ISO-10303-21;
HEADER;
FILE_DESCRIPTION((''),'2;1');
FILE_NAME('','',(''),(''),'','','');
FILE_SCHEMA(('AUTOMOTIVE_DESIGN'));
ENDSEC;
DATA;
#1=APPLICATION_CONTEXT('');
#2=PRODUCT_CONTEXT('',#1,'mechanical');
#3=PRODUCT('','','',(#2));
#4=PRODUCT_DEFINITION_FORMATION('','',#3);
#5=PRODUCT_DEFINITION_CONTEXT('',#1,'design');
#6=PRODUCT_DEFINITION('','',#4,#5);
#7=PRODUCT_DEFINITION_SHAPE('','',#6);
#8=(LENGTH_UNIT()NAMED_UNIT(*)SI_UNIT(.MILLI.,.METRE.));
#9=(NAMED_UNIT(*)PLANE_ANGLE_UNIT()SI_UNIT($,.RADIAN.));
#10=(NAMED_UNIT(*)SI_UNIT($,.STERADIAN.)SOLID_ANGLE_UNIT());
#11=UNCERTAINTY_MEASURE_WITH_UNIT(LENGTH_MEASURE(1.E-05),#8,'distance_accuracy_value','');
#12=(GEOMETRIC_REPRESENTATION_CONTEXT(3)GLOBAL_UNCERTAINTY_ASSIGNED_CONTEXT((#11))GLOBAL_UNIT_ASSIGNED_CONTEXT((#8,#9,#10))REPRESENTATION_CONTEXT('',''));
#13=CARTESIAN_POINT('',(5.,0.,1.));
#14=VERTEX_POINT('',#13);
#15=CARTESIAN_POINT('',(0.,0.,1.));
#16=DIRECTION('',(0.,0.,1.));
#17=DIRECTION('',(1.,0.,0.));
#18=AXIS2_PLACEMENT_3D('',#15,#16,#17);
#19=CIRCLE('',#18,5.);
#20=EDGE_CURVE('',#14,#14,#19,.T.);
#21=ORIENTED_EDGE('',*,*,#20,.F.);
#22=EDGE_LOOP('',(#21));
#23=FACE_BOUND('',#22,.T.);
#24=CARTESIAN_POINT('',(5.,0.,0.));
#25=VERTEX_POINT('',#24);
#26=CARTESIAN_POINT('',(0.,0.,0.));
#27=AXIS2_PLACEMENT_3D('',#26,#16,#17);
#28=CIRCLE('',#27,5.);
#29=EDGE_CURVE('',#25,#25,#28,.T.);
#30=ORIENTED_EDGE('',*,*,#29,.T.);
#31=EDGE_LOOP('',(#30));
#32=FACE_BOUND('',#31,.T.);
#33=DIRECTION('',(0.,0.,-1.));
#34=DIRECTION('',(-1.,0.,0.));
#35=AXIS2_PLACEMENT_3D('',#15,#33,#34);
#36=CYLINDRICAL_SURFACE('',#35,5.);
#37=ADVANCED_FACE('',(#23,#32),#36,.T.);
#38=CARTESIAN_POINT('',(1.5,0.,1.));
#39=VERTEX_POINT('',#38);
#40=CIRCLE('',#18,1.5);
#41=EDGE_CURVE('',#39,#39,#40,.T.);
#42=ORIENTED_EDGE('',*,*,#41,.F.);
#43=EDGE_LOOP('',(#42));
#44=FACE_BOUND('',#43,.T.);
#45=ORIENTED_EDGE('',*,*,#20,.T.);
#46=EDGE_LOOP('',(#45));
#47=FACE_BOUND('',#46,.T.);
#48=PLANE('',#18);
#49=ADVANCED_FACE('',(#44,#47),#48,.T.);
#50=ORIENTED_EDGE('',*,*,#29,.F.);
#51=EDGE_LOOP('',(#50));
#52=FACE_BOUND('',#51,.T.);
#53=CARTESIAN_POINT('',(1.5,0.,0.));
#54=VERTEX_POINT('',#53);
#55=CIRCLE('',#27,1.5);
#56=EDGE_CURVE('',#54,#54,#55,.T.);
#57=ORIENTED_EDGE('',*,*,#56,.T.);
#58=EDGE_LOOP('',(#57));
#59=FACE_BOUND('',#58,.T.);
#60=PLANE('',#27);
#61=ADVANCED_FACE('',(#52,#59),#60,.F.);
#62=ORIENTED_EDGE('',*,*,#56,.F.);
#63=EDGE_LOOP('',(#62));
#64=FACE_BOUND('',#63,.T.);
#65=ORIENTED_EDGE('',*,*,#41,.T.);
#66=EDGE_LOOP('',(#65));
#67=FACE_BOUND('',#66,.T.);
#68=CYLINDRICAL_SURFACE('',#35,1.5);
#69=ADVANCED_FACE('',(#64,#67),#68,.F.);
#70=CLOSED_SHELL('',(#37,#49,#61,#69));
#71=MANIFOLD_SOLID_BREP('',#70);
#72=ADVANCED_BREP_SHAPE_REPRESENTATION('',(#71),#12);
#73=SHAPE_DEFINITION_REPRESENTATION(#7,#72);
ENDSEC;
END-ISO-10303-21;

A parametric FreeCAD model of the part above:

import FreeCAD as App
import Part
import Sketcher
Q = App.Units.Quantity

doc = App.newDocument("Part")
params = doc.addObject("Spreadsheet::Sheet", "Params")
for row, (alias, value) in enumerate([
    ("sketch1_diameter", "10 mm"),
    ("sketch1_diameter2", "3 mm"),
    ("pad1_length", "1 mm"),
], start=1):
    params.set(f"A{row}", alias)
    params.set(f"B{row}", "=" + value)
    params.setAlias(f"B{row}", alias)

body = doc.addObject("PartDesign::Body", "Body")

# Sketch on XY plane
sketch1 = doc.addObject("Sketcher::SketchObject", "Sketch")
body.addObject(sketch1)
sketch1.AttachmentSupport = (doc.XY_Plane, [""])
sketch1.MapMode = "FlatFace"
sketch1.addGeometry([
    Part.Circle(App.Vector(0, 0, 0), App.Vector(0, 0, 1), 5),
    Part.Circle(App.Vector(0, 0, 0), App.Vector(0, 0, 1), 1.5),
], False)
sketch1.addConstraint([
    Sketcher.Constraint("Coincident", 0, 3, -1, 1),
    Sketcher.Constraint("Coincident", 1, 3, -1, 1),
    Sketcher.Constraint("Diameter", 0, Q("10 mm")),
    Sketcher.Constraint("Diameter", 1, Q("3 mm")),
])
sketch1.setExpression("Constraints[2]", "Params.sketch1_diameter")
sketch1.setExpression("Constraints[3]", "Params.sketch1_diameter2")
pad1 = doc.addObject("PartDesign::Pad", "Pad")
body.addObject(pad1)
pad1.Profile = sketch1
pad1.setExpression("Length", "Params.pad1_length")

doc.recompute()
